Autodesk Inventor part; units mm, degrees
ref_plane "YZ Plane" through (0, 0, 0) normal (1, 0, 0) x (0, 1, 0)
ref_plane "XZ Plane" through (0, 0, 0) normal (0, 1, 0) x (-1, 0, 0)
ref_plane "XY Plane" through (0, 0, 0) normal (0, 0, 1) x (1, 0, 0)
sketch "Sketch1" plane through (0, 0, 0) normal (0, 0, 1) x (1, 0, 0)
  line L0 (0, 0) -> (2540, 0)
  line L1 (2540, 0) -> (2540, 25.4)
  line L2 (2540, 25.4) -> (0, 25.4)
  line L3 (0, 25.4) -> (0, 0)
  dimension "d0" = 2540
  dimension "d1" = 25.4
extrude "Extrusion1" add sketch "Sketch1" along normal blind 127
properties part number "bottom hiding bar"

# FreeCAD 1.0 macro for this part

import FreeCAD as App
import Part
import Sketcher

V = App.Vector
Q = App.Units.Quantity


def add_polygon(sketch, points):
    """Adds a closed chain of lines whose ends are joined by coincident constraints."""
    first, n = sketch.GeometryCount, len(points)
    for a, b in zip(points, points[1:] + points[:1]):
        sketch.addGeometry(Part.LineSegment(App.Vector(*a, 0), App.Vector(*b, 0)), False)
    for i in range(n):
        sketch.addConstraint(Sketcher.Constraint("Coincident", first + i, 2, first + (i + 1) % n, 1))

doc = App.newDocument("Part")
body = doc.addObject("PartDesign::Body", "Body")

sketch1 = doc.addObject("Sketcher::SketchObject", "Sketch")
body.addObject(sketch1)
sketch1.AttachmentSupport = (doc.XY_Plane, [""])
sketch1.MapMode = "FlatFace"
add_polygon(sketch1, [(0, 25.4), (0, 0), (2540, 0), (2540, 25.4)])
sketch1.addConstraint(Sketcher.Constraint("Vertical", 0))
sketch1.addConstraint(Sketcher.Constraint("Horizontal", 1))
sketch1.addConstraint(Sketcher.Constraint("Vertical", 2))
sketch1.addConstraint(Sketcher.Constraint("Horizontal", 3))
sketch1.addConstraint(Sketcher.Constraint("Coincident", 0, 2, -1, 1))
sketch1.addConstraint(Sketcher.Constraint("DistanceX", 1, 1, 1, 2, Q("100 in")))
sketch1.addConstraint(Sketcher.Constraint("DistanceY", 0, 2, 0, 1, Q("1 in")))
pad1 = doc.addObject("PartDesign::Pad", "Pad")
body.addObject(pad1)
pad1.Profile = sketch1
pad1.Length = Q("5 in")

doc.recompute()
